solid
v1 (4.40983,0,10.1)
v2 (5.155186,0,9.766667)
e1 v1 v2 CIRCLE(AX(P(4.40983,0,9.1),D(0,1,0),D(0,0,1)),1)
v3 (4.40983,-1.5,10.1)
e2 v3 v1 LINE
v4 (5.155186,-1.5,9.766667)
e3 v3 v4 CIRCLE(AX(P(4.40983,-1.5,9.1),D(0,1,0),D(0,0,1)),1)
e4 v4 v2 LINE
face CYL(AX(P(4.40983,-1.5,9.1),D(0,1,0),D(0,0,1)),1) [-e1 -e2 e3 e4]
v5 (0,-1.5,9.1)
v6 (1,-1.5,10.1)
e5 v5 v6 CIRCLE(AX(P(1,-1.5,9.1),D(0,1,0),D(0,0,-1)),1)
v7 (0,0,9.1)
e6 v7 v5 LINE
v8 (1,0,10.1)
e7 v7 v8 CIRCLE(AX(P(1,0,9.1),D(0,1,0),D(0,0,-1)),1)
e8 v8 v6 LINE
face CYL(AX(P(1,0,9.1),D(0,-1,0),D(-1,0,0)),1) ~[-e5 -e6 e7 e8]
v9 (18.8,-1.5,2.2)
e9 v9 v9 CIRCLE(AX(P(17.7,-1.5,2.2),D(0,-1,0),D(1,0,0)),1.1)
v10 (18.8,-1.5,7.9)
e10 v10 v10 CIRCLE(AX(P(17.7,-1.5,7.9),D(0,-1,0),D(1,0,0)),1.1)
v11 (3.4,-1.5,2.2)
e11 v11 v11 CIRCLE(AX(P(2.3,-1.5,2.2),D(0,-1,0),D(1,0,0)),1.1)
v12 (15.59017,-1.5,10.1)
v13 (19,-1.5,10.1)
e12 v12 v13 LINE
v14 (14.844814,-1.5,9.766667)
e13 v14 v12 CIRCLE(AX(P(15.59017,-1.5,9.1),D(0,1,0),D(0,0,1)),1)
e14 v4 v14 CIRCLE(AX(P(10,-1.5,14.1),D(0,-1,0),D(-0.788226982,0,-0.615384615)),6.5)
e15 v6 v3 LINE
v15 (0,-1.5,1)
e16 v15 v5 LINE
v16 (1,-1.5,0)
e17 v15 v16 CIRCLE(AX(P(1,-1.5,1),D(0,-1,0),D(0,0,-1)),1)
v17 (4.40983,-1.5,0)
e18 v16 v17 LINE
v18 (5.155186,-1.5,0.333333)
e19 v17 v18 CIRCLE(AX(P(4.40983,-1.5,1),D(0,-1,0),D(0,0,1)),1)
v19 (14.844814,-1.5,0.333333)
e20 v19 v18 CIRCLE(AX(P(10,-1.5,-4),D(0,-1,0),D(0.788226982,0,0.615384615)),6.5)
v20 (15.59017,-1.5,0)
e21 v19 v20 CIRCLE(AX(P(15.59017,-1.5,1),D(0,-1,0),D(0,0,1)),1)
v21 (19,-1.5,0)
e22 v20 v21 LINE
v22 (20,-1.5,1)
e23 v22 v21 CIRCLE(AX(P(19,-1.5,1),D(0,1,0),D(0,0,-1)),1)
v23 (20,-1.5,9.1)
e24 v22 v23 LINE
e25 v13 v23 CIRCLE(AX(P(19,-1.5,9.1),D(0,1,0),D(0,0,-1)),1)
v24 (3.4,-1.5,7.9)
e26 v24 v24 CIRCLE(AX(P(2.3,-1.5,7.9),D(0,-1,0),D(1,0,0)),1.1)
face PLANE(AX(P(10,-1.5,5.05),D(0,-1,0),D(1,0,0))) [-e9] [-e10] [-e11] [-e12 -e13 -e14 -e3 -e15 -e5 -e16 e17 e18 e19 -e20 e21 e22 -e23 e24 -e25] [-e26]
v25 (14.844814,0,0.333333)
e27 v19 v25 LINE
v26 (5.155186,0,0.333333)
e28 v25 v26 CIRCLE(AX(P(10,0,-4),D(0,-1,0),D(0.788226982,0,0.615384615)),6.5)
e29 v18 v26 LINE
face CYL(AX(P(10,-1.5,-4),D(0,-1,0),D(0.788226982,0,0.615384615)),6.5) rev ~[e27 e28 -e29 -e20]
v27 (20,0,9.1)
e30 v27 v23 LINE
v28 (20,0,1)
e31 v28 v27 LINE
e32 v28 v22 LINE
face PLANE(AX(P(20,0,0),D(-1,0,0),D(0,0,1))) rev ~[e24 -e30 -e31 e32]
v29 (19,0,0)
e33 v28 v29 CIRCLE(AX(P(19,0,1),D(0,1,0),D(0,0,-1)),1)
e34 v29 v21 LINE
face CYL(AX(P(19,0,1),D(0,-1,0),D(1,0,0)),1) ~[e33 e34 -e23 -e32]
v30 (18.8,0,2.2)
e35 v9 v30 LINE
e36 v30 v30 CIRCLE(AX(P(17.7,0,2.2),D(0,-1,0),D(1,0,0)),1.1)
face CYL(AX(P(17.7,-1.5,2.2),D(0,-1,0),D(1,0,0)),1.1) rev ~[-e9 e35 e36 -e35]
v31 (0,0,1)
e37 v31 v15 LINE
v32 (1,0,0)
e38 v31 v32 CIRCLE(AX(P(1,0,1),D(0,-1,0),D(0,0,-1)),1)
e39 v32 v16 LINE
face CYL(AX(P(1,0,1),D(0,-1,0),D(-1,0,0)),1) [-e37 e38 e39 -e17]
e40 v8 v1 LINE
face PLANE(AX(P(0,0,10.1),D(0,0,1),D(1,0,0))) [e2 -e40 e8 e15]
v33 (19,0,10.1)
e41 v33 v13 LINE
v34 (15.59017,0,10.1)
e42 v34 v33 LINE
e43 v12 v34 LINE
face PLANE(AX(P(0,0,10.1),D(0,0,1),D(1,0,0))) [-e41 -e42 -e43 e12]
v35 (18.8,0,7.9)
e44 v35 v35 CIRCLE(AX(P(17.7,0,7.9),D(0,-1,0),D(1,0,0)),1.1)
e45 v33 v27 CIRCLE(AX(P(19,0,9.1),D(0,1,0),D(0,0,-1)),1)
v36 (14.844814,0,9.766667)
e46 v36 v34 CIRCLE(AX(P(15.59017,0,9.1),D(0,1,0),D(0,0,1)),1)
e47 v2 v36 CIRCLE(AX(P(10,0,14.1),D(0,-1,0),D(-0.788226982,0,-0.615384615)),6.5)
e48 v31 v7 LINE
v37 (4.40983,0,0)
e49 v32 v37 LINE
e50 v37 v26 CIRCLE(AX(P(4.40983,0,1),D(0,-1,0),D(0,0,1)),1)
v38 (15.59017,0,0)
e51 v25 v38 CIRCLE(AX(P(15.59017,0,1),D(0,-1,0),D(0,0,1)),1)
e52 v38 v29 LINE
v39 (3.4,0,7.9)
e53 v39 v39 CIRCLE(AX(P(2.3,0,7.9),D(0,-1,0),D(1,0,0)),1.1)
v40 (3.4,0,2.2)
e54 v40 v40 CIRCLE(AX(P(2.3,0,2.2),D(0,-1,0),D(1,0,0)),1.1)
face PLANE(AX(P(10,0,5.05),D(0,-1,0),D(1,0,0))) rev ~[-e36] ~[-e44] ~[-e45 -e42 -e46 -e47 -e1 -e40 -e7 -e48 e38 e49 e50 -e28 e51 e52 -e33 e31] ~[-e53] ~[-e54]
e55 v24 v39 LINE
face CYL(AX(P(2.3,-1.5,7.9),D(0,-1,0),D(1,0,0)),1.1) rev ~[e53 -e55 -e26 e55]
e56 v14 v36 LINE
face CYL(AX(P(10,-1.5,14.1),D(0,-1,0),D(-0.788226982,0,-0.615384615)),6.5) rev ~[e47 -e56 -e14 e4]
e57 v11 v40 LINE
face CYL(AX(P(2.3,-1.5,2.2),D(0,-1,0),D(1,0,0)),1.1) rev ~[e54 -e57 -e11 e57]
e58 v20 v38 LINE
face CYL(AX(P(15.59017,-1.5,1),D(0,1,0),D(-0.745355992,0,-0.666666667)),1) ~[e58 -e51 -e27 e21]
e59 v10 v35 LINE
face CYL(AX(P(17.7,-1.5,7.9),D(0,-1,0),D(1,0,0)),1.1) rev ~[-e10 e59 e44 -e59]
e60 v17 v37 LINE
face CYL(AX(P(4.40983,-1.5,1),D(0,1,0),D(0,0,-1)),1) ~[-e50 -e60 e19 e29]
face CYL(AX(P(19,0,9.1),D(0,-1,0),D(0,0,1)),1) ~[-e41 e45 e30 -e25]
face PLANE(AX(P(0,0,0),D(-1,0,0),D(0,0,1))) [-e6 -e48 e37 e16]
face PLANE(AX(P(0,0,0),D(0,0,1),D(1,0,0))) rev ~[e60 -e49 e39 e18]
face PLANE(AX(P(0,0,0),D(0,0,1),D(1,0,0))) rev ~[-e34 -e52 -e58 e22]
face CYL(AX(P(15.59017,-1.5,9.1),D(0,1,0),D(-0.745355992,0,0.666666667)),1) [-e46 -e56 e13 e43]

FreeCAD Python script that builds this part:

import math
import FreeCAD as App
import Part
import Sketcher

V = App.Vector
Q = App.Units.Quantity


def edges_at(feature, points):
    """Names of the edges that pass closest to the given points."""
    edges = feature.Shape.Edges
    near = lambda p: min(range(len(edges)), key=lambda i: edges[i].distToShape(Part.Vertex(*p))[0])
    return sorted({f"Edge{near(p) + 1}" for p in points})

doc = App.newDocument("Part")
body = doc.addObject("PartDesign::Body", "Body")

# Sketch on XZ plane
sketch1 = body.newObject("Sketcher::SketchObject", "Sketch")
sketch1.AttachmentSupport = (doc.getObject("XZ_Plane"), [""])
sketch1.MapMode = "FlatFace"
sketch1.addGeometry(Part.LineSegment(V(0, 10, 0), V(0, 0, 0)), False)
sketch1.addGeometry(Part.LineSegment(V(0, 0, 0), V(20, 0, 0)), False)
sketch1.addGeometry(Part.LineSegment(V(20, 0, 0), V(20, 10, 0)), False)
sketch1.addGeometry(Part.LineSegment(V(20, 10, 0), V(0, 10, 0)), False)
sketch1.addConstraint(Sketcher.Constraint("Coincident", 0, 2, 1, 1))
sketch1.addConstraint(Sketcher.Constraint("Coincident", 1, 2, 2, 1))
sketch1.addConstraint(Sketcher.Constraint("Coincident", 2, 2, 3, 1))
sketch1.addConstraint(Sketcher.Constraint("Coincident", 3, 2, 0, 1))
sketch1.addConstraint(Sketcher.Constraint("Vertical", 0))
sketch1.addConstraint(Sketcher.Constraint("Horizontal", 1))
sketch1.addConstraint(Sketcher.Constraint("Vertical", 2))
sketch1.addConstraint(Sketcher.Constraint("Horizontal", 3))
sketch1.addConstraint(Sketcher.Constraint("Coincident", 0, 2, -1, 1))
sketch1.addConstraint(Sketcher.Constraint("DistanceX", 1, 1, 1, 2, Q("20 mm")))
sketch1.addConstraint(Sketcher.Constraint("DistanceY", 0, 2, 0, 1, Q("10.1 mm")))
pad1 = body.newObject("PartDesign::Pad", "Pad")
pad1.Profile = sketch1
pad1.Length = 1.5

# Sketch on XZ plane
sketch2 = body.newObject("Sketcher::SketchObject", "Sketch001")
sketch2.AttachmentSupport = (doc.getObject("XZ_Plane"), [""])
sketch2.MapMode = "FlatFace"
sketch2.AttachmentOffset = App.Placement(V(0, 0, 1.5), App.Rotation())
sketch2.addGeometry(Part.Circle(V(2.3, 7.9, 0), V(0, 0, 1), 1.1), False)
sketch2.addGeometry(Part.Circle(V(17.7, 7.9, 0), V(0, 0, 1), 1.1), False)
sketch2.addGeometry(Part.Circle(V(2.3, 2.2, 0), V(0, 0, 1), 1.1), False)
sketch2.addGeometry(Part.Circle(V(17.7, 2.2, 0), V(0, 0, 1), 1.1), False)
sketch2.addGeometry(Part.LineSegment(V(15.1, 10.1, 0), V(4.9, 10.1, 0)), False)
sketch2.addGeometry(Part.ArcOfCircle(Part.Circle(V(10, 14.1, 0), V(0, 0, 1), 6.5), math.radians(-142), math.radians(-38)), False)
sketch2.addGeometry(Part.ArcOfCircle(Part.Circle(V(10, -4, 0), V(0, 0, 1), 6.5), math.radians(38), math.radians(142)), False)
sketch2.addGeometry(Part.LineSegment(V(4.9, 0, 0), V(15.1, 0, 0)), False)
sketch2.addConstraint(Sketcher.Constraint("Coincident", 4, 1, 5, 2))
sketch2.addConstraint(Sketcher.Constraint("Coincident", 5, 1, 4, 2))
sketch2.addConstraint(Sketcher.Constraint("Coincident", 6, 1, 7, 2))
sketch2.addConstraint(Sketcher.Constraint("Coincident", 7, 1, 6, 2))
sketch2.addConstraint(Sketcher.Constraint("Horizontal", 4))
sketch2.addConstraint(Sketcher.Constraint("Horizontal", 7))
sketch2.addConstraint(Sketcher.Constraint("Equal", 0, 1))
sketch2.addConstraint(Sketcher.Constraint("Equal", 1, 2))
sketch2.addConstraint(Sketcher.Constraint("Equal", 2, 3))
sketch2.addConstraint(Sketcher.Constraint("Equal", 5, 6))
sketch2.addConstraint(Sketcher.Constraint("PointOnObject", 6, 1, -1))
sketch2.addConstraint(Sketcher.Constraint("Horizontal", 0, 3, 1, 3))
sketch2.addConstraint(Sketcher.Constraint("Horizontal", 2, 3, 3, 3))
sketch2.addConstraint(Sketcher.Constraint("Vertical", 0, 3, 2, 3))
sketch2.addConstraint(Sketcher.Constraint("Vertical", 1, 3, 3, 3))
sketch2.addConstraint(Sketcher.Constraint("Vertical", 5, 3, 6, 3))
sketch2.addConstraint(Sketcher.Constraint("Vertical", 4, 1, 6, 1))
sketch2.addConstraint(Sketcher.Constraint("Diameter", 0, Q("2.2 mm")))
sketch2.addConstraint(Sketcher.Constraint("Radius", 5, Q("6.5 mm")))
sketch2.addConstraint(Sketcher.Constraint("DistanceX", -1, 1, 5, 3, Q("10 mm")))
sketch2.addConstraint(Sketcher.Constraint("DistanceY", 6, 3, -1, 1, Q("4 mm")))
sketch2.addConstraint(Sketcher.Constraint("DistanceX", -1, 1, 0, 3, Q("2.3 mm")))
sketch2.addConstraint(Sketcher.Constraint("DistanceY", -1, 1, 0, 3, Q("7.9 mm")))
sketch2.addConstraint(Sketcher.Constraint("DistanceX", -1, 1, 1, 3, Q("17.7 mm")))
sketch2.addConstraint(Sketcher.Constraint("DistanceY", -1, 1, 2, 3, Q("2.2 mm")))
sketch2.addConstraint(Sketcher.Constraint("DistanceY", -1, 1, 5, 3, Q("14.1 mm")))
pocket1 = body.newObject("PartDesign::Pocket", "Pocket")
pocket1.Profile = sketch2
pocket1.Type = "ThroughAll"
doc.recompute()

fillet = body.newObject("PartDesign::Fillet", "Fillet")
fillet.Base = (pocket1, edges_at(pocket1, [
    (20, -0.75, 10.1),
    (20, -0.75, 0),
    (0, -0.75, 10.1),
    (0, -0.75, 0),
    (4.877, -0.75, 10.1),
    (15.123, -0.75, 10.1),
    (4.877, -0.75, 0),
    (15.123, -0.75, 0),
]))
fillet.Radius = 1

doc.recompute()
